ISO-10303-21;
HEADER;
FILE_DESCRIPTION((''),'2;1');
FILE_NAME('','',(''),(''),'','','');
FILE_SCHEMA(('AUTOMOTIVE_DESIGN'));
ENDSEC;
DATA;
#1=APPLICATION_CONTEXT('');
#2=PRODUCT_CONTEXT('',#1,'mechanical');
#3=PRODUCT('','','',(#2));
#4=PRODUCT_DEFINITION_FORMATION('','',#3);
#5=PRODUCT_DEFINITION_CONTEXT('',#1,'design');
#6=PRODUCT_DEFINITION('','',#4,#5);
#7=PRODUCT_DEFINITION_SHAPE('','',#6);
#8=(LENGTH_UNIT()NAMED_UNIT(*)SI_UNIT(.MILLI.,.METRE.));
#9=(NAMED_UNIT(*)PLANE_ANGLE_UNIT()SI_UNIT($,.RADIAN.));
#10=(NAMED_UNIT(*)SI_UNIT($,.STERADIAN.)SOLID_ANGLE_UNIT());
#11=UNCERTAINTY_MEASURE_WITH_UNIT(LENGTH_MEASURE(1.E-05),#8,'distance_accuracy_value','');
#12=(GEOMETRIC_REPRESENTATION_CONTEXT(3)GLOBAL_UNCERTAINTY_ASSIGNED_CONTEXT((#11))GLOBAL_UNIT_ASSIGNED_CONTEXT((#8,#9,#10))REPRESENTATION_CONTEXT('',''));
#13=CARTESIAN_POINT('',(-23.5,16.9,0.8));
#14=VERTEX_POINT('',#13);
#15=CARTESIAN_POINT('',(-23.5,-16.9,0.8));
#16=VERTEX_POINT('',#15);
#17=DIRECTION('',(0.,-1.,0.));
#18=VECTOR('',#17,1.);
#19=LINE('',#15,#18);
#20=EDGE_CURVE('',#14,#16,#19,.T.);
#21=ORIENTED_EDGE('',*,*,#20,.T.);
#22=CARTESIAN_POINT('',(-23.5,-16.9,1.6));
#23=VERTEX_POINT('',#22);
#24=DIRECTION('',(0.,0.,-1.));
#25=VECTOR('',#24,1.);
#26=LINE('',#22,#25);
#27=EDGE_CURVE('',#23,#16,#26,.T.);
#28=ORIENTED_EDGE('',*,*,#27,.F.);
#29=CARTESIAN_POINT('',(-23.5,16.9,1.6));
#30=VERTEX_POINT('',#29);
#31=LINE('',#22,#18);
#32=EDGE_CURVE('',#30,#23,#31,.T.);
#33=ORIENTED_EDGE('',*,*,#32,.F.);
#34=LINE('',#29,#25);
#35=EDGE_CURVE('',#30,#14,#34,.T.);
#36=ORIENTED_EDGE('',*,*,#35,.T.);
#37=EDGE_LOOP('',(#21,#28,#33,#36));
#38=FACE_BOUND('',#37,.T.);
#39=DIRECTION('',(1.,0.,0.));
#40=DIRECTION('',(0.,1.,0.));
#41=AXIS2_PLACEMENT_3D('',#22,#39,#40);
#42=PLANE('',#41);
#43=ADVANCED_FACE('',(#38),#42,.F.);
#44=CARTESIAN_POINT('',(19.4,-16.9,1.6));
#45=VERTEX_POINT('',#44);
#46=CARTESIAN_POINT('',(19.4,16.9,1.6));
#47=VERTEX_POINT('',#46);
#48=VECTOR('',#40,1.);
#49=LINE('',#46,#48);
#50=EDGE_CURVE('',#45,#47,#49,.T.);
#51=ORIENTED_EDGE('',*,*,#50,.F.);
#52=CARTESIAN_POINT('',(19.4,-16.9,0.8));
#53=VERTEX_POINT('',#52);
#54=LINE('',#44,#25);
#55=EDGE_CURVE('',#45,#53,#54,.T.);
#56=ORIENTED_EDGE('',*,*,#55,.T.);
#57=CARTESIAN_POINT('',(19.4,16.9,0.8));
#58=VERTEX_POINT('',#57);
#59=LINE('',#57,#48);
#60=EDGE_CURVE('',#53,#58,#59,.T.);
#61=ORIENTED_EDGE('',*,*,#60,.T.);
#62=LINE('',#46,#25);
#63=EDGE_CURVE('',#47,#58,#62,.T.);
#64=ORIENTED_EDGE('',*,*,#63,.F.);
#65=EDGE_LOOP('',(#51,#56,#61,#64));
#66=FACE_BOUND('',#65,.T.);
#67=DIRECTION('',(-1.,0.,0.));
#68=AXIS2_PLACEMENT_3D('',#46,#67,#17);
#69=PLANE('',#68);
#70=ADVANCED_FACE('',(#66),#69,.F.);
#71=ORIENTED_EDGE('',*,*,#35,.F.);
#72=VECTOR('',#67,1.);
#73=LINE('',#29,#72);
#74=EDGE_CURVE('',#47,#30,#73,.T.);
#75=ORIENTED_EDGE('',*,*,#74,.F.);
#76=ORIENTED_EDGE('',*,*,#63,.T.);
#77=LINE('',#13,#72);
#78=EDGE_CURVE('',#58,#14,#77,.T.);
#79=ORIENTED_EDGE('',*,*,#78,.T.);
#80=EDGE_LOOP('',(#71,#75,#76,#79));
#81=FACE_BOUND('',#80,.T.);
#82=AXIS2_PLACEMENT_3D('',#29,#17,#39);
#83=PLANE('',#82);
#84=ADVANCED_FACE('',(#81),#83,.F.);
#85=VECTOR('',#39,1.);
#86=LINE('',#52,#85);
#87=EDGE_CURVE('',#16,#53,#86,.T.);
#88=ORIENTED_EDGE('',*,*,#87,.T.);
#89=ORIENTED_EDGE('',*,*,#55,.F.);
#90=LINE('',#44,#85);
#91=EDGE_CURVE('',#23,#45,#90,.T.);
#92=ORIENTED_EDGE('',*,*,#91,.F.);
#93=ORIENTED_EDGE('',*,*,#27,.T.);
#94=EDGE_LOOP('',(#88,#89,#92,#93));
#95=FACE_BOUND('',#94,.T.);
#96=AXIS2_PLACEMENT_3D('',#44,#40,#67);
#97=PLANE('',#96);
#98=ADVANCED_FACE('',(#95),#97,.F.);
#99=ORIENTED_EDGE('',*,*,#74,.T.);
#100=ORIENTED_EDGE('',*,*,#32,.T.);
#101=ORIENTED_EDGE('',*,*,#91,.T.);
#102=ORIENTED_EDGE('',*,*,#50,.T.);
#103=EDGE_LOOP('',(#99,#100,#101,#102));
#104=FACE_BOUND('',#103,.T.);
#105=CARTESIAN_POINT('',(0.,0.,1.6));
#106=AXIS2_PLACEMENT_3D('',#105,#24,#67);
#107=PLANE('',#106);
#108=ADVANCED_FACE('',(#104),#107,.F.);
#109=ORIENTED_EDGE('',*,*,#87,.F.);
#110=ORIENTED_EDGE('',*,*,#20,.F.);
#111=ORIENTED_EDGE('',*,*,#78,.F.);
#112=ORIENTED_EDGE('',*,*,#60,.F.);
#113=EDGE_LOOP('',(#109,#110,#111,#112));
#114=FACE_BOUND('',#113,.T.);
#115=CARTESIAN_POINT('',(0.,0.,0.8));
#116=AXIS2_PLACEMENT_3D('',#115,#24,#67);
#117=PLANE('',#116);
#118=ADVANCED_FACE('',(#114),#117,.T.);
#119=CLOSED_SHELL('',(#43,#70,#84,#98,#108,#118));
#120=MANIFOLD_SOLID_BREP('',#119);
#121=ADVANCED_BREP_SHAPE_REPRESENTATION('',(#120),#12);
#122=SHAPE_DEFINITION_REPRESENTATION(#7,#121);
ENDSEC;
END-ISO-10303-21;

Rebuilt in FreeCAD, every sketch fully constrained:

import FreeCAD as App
import Part
import Sketcher
Q = App.Units.Quantity


def add_polygon(sketch, points):
    """Adds a closed chain of lines whose ends are joined by coincident constraints."""
    first, n = sketch.GeometryCount, len(points)
    for a, b in zip(points, points[1:] + points[:1]):
        sketch.addGeometry(Part.LineSegment(App.Vector(*a, 0), App.Vector(*b, 0)), False)
    for i in range(n):
        sketch.addConstraint(Sketcher.Constraint("Coincident", first + i, 2, first + (i + 1) % n, 1))

doc = App.newDocument("Part")
body = doc.addObject("PartDesign::Body", "Body")

sketch1 = doc.addObject("Sketcher::SketchObject", "Sketch")
body.addObject(sketch1)
sketch1.AttachmentSupport = (doc.XY_Plane, [""])
sketch1.MapMode = "FlatFace"
sketch1.AttachmentOffset = App.Placement(App.Vector(0, 0, 0.8), App.Rotation())
add_polygon(sketch1, [(-24, 17), (-24, -17), (19, -17), (19, 17)])
sketch1.addConstraint(Sketcher.Constraint("Vertical", 0))
sketch1.addConstraint(Sketcher.Constraint("Horizontal", 1))
sketch1.addConstraint(Sketcher.Constraint("Vertical", 2))
sketch1.addConstraint(Sketcher.Constraint("Horizontal", 3))
sketch1.addConstraint(Sketcher.Constraint("DistanceX", 1, 1, 1, 2, Q("42.9 mm")))
sketch1.addConstraint(Sketcher.Constraint("DistanceY", 0, 2, 0, 1, Q("33.8 mm")))
sketch1.addConstraint(Sketcher.Constraint("DistanceX", 0, 2, -1, 1, Q("23.5 mm")))
sketch1.addConstraint(Sketcher.Constraint("DistanceY", 0, 2, -1, 1, Q("16.9 mm")))
pad1 = doc.addObject("PartDesign::Pad", "Pad")
body.addObject(pad1)
pad1.Profile = sketch1
pad1.Length = 0.8

doc.recompute()
